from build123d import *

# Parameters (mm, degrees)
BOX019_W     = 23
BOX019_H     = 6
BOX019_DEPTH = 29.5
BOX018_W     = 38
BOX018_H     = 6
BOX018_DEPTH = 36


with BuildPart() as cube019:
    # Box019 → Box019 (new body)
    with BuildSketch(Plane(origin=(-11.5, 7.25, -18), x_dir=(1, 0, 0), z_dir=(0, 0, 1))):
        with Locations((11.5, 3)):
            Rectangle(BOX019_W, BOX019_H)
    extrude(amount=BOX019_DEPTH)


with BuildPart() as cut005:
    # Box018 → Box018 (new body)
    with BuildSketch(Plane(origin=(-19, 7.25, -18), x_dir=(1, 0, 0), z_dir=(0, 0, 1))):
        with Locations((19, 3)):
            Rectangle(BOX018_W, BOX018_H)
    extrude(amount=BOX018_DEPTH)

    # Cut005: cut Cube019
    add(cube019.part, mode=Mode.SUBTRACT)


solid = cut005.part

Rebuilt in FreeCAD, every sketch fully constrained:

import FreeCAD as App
import Part
import Sketcher

doc = App.newDocument("Part")
params = doc.addObject("Spreadsheet::Sheet", "Params")
for row, (alias, value) in enumerate([
    ("sketch1_width", "23 mm"),
    ("sketch1_height", "6 mm"),
    ("pad1_length", "29.5 mm"),
    ("sketch2_width", "38 mm"),
    ("sketch2_height", "6 mm"),
    ("pad2_length", "36 mm"),
], start=1):
    params.set(f"A{row}", alias)
    params.set(f"B{row}", "=" + value)
    params.setAlias(f"B{row}", alias)

body = doc.addObject("PartDesign::Body", "Body")

# Sketch on XY plane
sketch1 = body.newObject("Sketcher::SketchObject", "Sketch")
sketch1.AttachmentSupport = (doc.getObject("XY_Plane"), [""])
sketch1.MapMode = "FlatFace"
sketch1.AttachmentOffset = App.Placement(App.Vector(0, 0, -18), App.Rotation())
sketch1.addGeometry([
    Part.LineSegment(App.Vector(-12, 13, 0), App.Vector(-12, 7, 0)),
    Part.LineSegment(App.Vector(-12, 7, 0), App.Vector(12, 7, 0)),
    Part.LineSegment(App.Vector(12, 7, 0), App.Vector(12, 13, 0)),
    Part.LineSegment(App.Vector(12, 13, 0), App.Vector(-12, 13, 0)),
], False)
sketch1.addConstraint([
    Sketcher.Constraint("Coincident", 0, 2, 1, 1),
    Sketcher.Constraint("Coincident", 1, 2, 2, 1),
    Sketcher.Constraint("Coincident", 2, 2, 3, 1),
    Sketcher.Constraint("Coincident", 3, 2, 0, 1),
    Sketcher.Constraint("Vertical", 0),
    Sketcher.Constraint("Horizontal", 1),
    Sketcher.Constraint("Vertical", 2),
    Sketcher.Constraint("Horizontal", 3),
    Sketcher.Constraint("DistanceX", 1, 1, 1, 2, 23.0),
    Sketcher.Constraint("DistanceY", 0, 2, 0, 1, 6.0),
    Sketcher.Constraint("DistanceX", 0, 2, -1, 1, 11.5),
    Sketcher.Constraint("DistanceY", -1, 1, 0, 2, 7.25),
])
sketch1.setExpression("Constraints[8]", "Params.sketch1_width")
sketch1.setExpression("Constraints[9]", "Params.sketch1_height")
pad1 = body.newObject("PartDesign::Pad", "Pad")
pad1.Profile = sketch1
pad1.setExpression("Length", "Params.pad1_length")
body2 = doc.addObject("PartDesign::Body", "Body001")

# Sketch on XY plane
sketch2 = body2.newObject("Sketcher::SketchObject", "Sketch001")
sketch2.AttachmentSupport = (doc.getObject("XY_Plane001"), [""])
sketch2.MapMode = "FlatFace"
sketch2.AttachmentOffset = App.Placement(App.Vector(0, 0, -18), App.Rotation())
sketch2.addGeometry([
    Part.LineSegment(App.Vector(-19, 13, 0), App.Vector(-19, 7, 0)),
    Part.LineSegment(App.Vector(-19, 7, 0), App.Vector(19, 7, 0)),
    Part.LineSegment(App.Vector(19, 7, 0), App.Vector(19, 13, 0)),
    Part.LineSegment(App.Vector(19, 13, 0), App.Vector(-19, 13, 0)),
], False)
sketch2.addConstraint([
    Sketcher.Constraint("Coincident", 0, 2, 1, 1),
    Sketcher.Constraint("Coincident", 1, 2, 2, 1),
    Sketcher.Constraint("Coincident", 2, 2, 3, 1),
    Sketcher.Constraint("Coincident", 3, 2, 0, 1),
    Sketcher.Constraint("Vertical", 0),
    Sketcher.Constraint("Horizontal", 1),
    Sketcher.Constraint("Vertical", 2),
    Sketcher.Constraint("Horizontal", 3),
    Sketcher.Constraint("DistanceX", 1, 1, 1, 2, 38.0),
    Sketcher.Constraint("DistanceY", 0, 2, 0, 1, 6.0),
    Sketcher.Constraint("DistanceX", 0, 2, -1, 1, 19.0),
    Sketcher.Constraint("DistanceY", -1, 1, 0, 2, 7.25),
])
sketch2.setExpression("Constraints[8]", "Params.sketch2_width")
sketch2.setExpression("Constraints[9]", "Params.sketch2_height")
pad2 = body2.newObject("PartDesign::Pad", "Pad001")
pad2.Profile = sketch2
pad2.setExpression("Length", "Params.pad2_length")
doc.recompute()

boolean = body2.newObject("PartDesign::Boolean", "Boolean")
boolean.Type = "Cut"
boolean.addObjects([body])

doc.recompute()
